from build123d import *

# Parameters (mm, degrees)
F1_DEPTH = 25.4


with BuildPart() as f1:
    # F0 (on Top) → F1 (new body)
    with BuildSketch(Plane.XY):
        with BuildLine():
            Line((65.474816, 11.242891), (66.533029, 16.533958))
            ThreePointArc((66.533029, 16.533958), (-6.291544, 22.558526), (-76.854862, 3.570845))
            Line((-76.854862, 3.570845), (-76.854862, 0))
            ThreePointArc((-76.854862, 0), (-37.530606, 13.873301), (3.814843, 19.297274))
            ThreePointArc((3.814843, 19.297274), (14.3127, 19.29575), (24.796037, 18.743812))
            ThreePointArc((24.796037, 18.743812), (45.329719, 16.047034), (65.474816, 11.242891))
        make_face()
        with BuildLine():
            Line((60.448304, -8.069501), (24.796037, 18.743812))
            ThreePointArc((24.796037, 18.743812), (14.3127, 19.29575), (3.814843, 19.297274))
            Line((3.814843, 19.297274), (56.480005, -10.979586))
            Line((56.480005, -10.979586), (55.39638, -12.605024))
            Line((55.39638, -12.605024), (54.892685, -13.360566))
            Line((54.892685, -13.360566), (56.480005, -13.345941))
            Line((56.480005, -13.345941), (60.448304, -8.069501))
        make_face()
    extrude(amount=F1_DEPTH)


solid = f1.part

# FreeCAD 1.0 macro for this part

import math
import FreeCAD as App
import Part
import Sketcher
Q = App.Units.Quantity

doc = App.newDocument("Part")
params = doc.addObject("Spreadsheet::Sheet", "Params")
for row, (alias, value) in enumerate([
    ("pad1_length", "1 in"),
], start=1):
    params.set(f"A{row}", alias)
    params.set(f"B{row}", "=" + value)
    params.setAlias(f"B{row}", alias)

body = doc.addObject("PartDesign::Body", "Body")

# Sketch on XY plane
sketch1 = doc.addObject("Sketcher::SketchObject", "Sketch")
body.addObject(sketch1)
sketch1.AttachmentSupport = (doc.XY_Plane, [""])
sketch1.MapMode = "FlatFace"
sketch1.addGeometry([
    Part.LineSegment(App.Vector(65.5, 11.2, 0), App.Vector(66.5, 16.5, 0)),  # 0
    Part.ArcOfCircle(Part.Circle(App.Vector(12.9, -189.2, 0), App.Vector(0, 0, 1), 212.6), math.radians(75), math.radians(115)),  # 1
    Part.LineSegment(App.Vector(-76.9, 3.6, 0), App.Vector(-76.9, 0, 0)),  # 2
    Part.ArcOfCircle(Part.Circle(App.Vector(9, -180.8, 0), App.Vector(0, 0, 1), 200.2), math.radians(91), math.radians(115)),  # 3
    Part.LineSegment(App.Vector(3.8, 19.3, 0), App.Vector(56.5, -11, 0)),  # 4
    Part.LineSegment(App.Vector(56.5, -11, 0), App.Vector(55.4, -12.6, 0)),  # 5
    Part.LineSegment(App.Vector(55.4, -12.6, 0), App.Vector(54.9, -13.4, 0)),  # 6
    Part.LineSegment(App.Vector(54.9, -13.4, 0), App.Vector(56.5, -13.3, 0)),  # 7
    Part.LineSegment(App.Vector(56.5, -13.3, 0), App.Vector(60.4, -8.1, 0)),  # 8
    Part.LineSegment(App.Vector(60.4, -8.1, 0), App.Vector(24.8, 18.7, 0)),  # 9
    Part.ArcOfCircle(Part.Circle(App.Vector(9, -180.8, 0), App.Vector(0, 0, 1), 200.2), math.radians(73.62), math.radians(85.48)),  # 10
], False)
sketch1.addConstraint([
    Sketcher.Constraint("Coincident", 0, 2, 1, 1),
    Sketcher.Constraint("Coincident", 1, 2, 2, 1),
    Sketcher.Constraint("Coincident", 2, 2, 3, 2),
    Sketcher.Constraint("Coincident", 3, 1, 4, 1),
    Sketcher.Constraint("Coincident", 4, 2, 5, 1),
    Sketcher.Constraint("Coincident", 5, 2, 6, 1),
    Sketcher.Constraint("Coincident", 6, 2, 7, 1),
    Sketcher.Constraint("Coincident", 7, 2, 8, 1),
    Sketcher.Constraint("Coincident", 8, 2, 9, 1),
    Sketcher.Constraint("Coincident", 9, 2, 10, 2),
    Sketcher.Constraint("Coincident", 10, 1, 0, 1),
    Sketcher.Constraint("Vertical", 2),
    Sketcher.Constraint("PointOnObject", 2, 2, -1),
    Sketcher.Constraint("Parallel", 5, 6),
    Sketcher.Constraint("Perpendicular", 8, 9),
    Sketcher.Constraint("Vertical", 4, 2, 7, 2),
    Sketcher.Constraint("Radius", 1, Q("212.616841 mm")),
    Sketcher.Constraint("Radius", 10, Q("200.152291 mm")),
    Sketcher.Constraint("Radius", 3, Q("200.152275 mm")),
    Sketcher.Constraint("Distance", 4, Q("60.747902 mm")),
    Sketcher.Constraint("DistanceX", -1, 1, 1, 3, Q("12.852201 mm")),
    Sketcher.Constraint("DistanceY", 8, 2, -1, 1, Q("8.069501 mm")),
    Sketcher.Constraint("DistanceY", 1, 3, 3, 3, Q("8.407799 mm")),
    Sketcher.Constraint("DistanceX", 3, 3, 0, 2, Q("57.498302 mm")),
    Sketcher.Constraint("DistanceY", 5, 2, 3, 1, Q("31.902298 mm")),
    Sketcher.Constraint("DistanceY", 7, 2, 0, 2, Q("29.879899 mm")),
    Sketcher.Constraint("DistanceX", 4, 2, 8, 2, Q("3.968299 mm")),
    Sketcher.Constraint("Distance", 0, Q("5.395851 mm")),
    Sketcher.Constraint("Distance", 6, Q("0.908049 mm")),
    Sketcher.Constraint("Distance", 9, Q("44.609841 mm")),
    Sketcher.Constraint("DistanceY", 2, 2, 2, 1, Q("3.570845 mm")),
    Sketcher.Constraint("DistanceY", 10, 3, -1, 1, Q("180.786939 mm")),
    Sketcher.Constraint("DistanceX", 2, 2, -1, 1, Q("76.854862 mm")),
    Sketcher.Constraint("DistanceX", -1, 1, 5, 2, Q("55.39638 mm")),
    Sketcher.Constraint("DistanceY", -1, 1, 10, 1, Q("11.242891 mm")),
    Sketcher.Constraint("DistanceY", 4, 2, 3, 1, Q("30.27686 mm")),
])
pad1 = doc.addObject("PartDesign::Pad", "Pad")
body.addObject(pad1)
pad1.Profile = sketch1
pad1.setExpression("Length", "Params.pad1_length")

doc.recompute()
